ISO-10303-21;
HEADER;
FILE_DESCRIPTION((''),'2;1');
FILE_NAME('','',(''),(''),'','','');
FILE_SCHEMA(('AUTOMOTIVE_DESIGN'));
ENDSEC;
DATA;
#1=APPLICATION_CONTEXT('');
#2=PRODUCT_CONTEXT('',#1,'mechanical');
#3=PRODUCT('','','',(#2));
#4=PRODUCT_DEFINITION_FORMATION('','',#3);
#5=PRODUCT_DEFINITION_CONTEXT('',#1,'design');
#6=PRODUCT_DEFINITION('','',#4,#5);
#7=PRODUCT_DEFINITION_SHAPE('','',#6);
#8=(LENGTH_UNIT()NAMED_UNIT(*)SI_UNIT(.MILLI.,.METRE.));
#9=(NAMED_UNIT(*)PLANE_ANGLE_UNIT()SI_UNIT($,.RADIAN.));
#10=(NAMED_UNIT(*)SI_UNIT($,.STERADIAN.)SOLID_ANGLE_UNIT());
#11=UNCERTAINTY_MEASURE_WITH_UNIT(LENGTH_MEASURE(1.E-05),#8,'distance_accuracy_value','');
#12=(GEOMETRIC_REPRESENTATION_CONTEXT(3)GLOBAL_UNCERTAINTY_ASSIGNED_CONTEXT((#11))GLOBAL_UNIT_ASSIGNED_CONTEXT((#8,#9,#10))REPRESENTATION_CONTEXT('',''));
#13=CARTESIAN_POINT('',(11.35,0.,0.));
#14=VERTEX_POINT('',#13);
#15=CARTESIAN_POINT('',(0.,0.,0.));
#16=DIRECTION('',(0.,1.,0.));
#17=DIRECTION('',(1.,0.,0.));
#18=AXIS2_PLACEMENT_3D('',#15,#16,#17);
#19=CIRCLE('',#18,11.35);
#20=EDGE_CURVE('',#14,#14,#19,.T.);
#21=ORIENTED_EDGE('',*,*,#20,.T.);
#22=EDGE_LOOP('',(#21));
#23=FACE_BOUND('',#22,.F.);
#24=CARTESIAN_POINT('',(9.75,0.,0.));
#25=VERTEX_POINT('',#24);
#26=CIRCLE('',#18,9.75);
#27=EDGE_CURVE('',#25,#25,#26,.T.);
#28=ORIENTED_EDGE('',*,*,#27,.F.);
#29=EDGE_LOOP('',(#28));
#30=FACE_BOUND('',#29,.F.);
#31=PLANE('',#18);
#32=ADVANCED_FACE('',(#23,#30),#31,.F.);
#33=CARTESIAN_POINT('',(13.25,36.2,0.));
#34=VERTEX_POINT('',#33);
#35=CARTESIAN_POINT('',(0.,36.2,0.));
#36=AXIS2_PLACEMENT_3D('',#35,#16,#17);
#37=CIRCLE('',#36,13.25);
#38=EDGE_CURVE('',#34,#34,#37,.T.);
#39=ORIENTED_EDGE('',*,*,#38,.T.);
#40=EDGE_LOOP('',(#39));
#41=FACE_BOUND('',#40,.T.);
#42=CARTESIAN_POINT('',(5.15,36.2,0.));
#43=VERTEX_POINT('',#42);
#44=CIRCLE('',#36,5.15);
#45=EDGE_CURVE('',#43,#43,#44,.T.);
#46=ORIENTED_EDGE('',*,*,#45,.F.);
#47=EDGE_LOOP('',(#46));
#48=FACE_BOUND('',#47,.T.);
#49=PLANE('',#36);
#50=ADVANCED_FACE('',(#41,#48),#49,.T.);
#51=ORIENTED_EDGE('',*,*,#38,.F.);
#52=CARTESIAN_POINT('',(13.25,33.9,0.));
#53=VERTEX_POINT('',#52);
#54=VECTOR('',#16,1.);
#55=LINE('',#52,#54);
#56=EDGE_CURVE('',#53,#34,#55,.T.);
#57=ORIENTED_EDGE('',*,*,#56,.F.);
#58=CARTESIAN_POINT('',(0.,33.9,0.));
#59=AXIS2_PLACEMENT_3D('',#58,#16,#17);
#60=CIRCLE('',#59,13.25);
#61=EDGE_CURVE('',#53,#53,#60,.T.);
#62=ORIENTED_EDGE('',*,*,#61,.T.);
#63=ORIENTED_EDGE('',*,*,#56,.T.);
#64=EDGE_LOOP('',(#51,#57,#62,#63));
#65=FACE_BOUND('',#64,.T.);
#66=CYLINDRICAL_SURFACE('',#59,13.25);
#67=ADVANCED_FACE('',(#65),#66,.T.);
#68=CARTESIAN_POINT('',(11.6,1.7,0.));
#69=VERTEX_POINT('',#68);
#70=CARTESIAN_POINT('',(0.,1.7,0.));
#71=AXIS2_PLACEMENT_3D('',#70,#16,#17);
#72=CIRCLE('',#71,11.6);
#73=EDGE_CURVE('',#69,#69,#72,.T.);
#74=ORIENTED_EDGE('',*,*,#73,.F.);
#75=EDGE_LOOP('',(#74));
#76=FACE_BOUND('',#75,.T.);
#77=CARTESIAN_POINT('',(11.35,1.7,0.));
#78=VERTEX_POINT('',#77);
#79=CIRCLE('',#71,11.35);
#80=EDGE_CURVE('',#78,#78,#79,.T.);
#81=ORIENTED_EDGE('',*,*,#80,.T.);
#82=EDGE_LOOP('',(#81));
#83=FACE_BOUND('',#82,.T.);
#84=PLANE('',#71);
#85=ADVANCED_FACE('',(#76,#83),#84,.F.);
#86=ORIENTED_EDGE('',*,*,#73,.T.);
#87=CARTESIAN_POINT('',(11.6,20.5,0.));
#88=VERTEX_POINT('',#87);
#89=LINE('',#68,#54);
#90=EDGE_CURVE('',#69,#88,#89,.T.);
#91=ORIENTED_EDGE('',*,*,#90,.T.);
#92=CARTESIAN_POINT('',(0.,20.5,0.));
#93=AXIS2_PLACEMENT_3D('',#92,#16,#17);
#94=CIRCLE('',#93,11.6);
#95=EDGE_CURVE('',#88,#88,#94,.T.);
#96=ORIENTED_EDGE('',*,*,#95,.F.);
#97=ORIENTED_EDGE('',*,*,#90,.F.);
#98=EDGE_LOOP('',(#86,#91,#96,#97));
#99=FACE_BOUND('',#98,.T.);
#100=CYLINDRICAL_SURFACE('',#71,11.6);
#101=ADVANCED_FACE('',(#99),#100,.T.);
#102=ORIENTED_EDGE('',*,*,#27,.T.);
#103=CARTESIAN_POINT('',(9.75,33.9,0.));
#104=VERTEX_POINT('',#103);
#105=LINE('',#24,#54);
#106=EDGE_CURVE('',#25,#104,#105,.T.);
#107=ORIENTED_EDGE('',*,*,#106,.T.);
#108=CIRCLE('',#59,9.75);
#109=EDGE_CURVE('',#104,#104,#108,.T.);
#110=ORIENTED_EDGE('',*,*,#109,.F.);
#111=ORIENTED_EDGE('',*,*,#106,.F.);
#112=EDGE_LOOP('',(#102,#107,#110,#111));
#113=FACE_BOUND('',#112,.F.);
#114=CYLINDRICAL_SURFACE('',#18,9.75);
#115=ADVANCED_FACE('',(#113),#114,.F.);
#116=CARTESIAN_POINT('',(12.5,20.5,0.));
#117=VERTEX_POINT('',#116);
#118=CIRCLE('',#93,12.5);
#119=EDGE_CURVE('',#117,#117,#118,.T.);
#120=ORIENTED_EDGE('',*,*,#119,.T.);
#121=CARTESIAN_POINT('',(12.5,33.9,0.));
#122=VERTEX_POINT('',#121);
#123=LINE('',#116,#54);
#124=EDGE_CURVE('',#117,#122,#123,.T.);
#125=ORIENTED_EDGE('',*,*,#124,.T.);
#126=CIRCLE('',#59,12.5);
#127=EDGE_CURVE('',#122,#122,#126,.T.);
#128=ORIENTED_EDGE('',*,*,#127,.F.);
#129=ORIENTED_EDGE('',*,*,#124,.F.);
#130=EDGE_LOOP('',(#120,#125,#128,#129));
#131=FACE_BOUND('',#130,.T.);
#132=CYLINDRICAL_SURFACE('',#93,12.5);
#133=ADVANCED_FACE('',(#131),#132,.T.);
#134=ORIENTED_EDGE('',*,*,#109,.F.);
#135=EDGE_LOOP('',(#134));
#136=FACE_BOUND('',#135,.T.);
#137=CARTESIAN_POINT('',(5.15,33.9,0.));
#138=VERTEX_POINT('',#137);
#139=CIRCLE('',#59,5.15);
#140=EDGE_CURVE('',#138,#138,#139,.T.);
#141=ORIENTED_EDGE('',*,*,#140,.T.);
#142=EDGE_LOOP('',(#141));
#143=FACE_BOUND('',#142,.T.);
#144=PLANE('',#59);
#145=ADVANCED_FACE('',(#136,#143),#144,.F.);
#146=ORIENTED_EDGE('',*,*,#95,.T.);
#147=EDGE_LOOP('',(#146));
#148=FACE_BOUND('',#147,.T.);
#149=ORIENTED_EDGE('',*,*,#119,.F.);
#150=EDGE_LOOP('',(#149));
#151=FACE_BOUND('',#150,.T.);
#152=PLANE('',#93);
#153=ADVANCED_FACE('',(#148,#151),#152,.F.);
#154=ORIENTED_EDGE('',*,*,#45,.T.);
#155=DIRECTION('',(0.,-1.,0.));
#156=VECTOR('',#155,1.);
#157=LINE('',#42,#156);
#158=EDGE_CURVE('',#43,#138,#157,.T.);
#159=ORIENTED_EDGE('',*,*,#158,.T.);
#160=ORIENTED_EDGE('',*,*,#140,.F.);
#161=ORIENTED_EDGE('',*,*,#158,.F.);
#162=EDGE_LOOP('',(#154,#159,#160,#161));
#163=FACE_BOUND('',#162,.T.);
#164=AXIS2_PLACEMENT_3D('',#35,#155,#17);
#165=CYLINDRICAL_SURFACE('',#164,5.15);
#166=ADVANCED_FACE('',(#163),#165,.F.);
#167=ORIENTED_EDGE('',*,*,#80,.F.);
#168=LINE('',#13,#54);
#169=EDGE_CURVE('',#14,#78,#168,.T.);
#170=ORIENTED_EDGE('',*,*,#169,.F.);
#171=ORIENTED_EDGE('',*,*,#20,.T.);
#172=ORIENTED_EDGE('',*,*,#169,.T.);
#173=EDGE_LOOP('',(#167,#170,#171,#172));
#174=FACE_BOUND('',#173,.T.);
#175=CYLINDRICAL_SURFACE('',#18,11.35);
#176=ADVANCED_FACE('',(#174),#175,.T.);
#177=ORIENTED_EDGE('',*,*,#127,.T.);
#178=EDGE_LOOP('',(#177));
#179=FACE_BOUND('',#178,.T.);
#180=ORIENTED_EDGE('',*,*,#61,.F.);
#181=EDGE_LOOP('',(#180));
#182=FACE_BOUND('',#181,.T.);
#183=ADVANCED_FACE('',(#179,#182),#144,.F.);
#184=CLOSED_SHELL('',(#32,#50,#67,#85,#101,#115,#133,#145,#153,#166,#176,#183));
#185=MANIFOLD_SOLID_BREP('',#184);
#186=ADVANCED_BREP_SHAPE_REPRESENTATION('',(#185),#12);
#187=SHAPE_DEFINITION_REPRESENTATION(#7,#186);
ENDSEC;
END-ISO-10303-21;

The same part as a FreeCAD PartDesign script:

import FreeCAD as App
import Part
import Sketcher

doc = App.newDocument("Part")
params = doc.addObject("Spreadsheet::Sheet", "Params")
for row, (alias, value) in enumerate([
    ("sketch1_width", "1.6 mm"),
    ("sketch1_width2", "8.1 mm"),
    ("sketch1_height", "1.7 mm"),
    ("sketch1_height2", "2.3 mm"),
    ("sketch1_width3", "0.25 mm"),
    ("revolution_angle", "360 deg"),
], start=1):
    params.set(f"A{row}", alias)
    params.set(f"B{row}", "=" + value)
    params.setAlias(f"B{row}", alias)

body = doc.addObject("PartDesign::Body", "Body")

# Sketch on XY plane
sketch1 = doc.addObject("Sketcher::SketchObject", "Sketch")
body.addObject(sketch1)
sketch1.AttachmentSupport = (doc.XY_Plane, [""])
sketch1.MapMode = "FlatFace"
sketch1.addGeometry([
    Part.LineSegment(App.Vector(9.75, 0, 0), App.Vector(11.35, 0, 0)),  # 0
    Part.LineSegment(App.Vector(11.35, 0, 0), App.Vector(11.35, 1.7, 0)),  # 1
    Part.LineSegment(App.Vector(11.35, 1.7, 0), App.Vector(11.6, 1.7, 0)),  # 2
    Part.LineSegment(App.Vector(11.6, 1.7, 0), App.Vector(11.6, 20.5, 0)),  # 3
    Part.LineSegment(App.Vector(11.6, 20.5, 0), App.Vector(12.5, 20.5, 0)),  # 4
    Part.LineSegment(App.Vector(12.5, 20.5, 0), App.Vector(12.5, 33.9, 0)),  # 5
    Part.LineSegment(App.Vector(12.5, 33.9, 0), App.Vector(13.25, 33.9, 0)),  # 6
    Part.LineSegment(App.Vector(13.25, 33.9, 0), App.Vector(13.25, 36.2, 0)),  # 7
    Part.LineSegment(App.Vector(13.25, 36.2, 0), App.Vector(5.15, 36.2, 0)),  # 8
    Part.LineSegment(App.Vector(5.15, 36.2, 0), App.Vector(5.15, 33.9, 0)),  # 9
    Part.LineSegment(App.Vector(5.15, 33.9, 0), App.Vector(9.75, 33.9, 0)),  # 10
    Part.LineSegment(App.Vector(9.75, 33.9, 0), App.Vector(9.75, 0, 0)),  # 11
], False)
sketch1.addConstraint([
    Sketcher.Constraint("Coincident", 0, 2, 1, 1),
    Sketcher.Constraint("Coincident", 1, 2, 2, 1),
    Sketcher.Constraint("Coincident", 2, 2, 3, 1),
    Sketcher.Constraint("Coincident", 3, 2, 4, 1),
    Sketcher.Constraint("Coincident", 4, 2, 5, 1),
    Sketcher.Constraint("Coincident", 5, 2, 6, 1),
    Sketcher.Constraint("Coincident", 6, 2, 7, 1),
    Sketcher.Constraint("Coincident", 7, 2, 8, 1),
    Sketcher.Constraint("Coincident", 8, 2, 9, 1),
    Sketcher.Constraint("Coincident", 9, 2, 10, 1),
    Sketcher.Constraint("Coincident", 10, 2, 11, 1),
    Sketcher.Constraint("Coincident", 11, 2, 0, 1),
    Sketcher.Constraint("Horizontal", 0),
    Sketcher.Constraint("Vertical", 1),
    Sketcher.Constraint("Horizontal", 2),
    Sketcher.Constraint("Vertical", 3),
    Sketcher.Constraint("Horizontal", 4),
    Sketcher.Constraint("Vertical", 5),
    Sketcher.Constraint("Horizontal", 6),
    Sketcher.Constraint("Vertical", 7),
    Sketcher.Constraint("Horizontal", 8),
    Sketcher.Constraint("Vertical", 9),
    Sketcher.Constraint("Horizontal", 10),
    Sketcher.Constraint("Vertical", 11),
    Sketcher.Constraint("PointOnObject", 0, 2, -1),
    Sketcher.Constraint("Horizontal", 6, 2, 9, 2),
    Sketcher.Constraint("DistanceX", 0, 1, 0, 2, 1.6),
    Sketcher.Constraint("DistanceX", 8, 2, 8, 1, 8.1),
    Sketcher.Constraint("DistanceY", 1, 1, 1, 2, 1.7),
    Sketcher.Constraint("DistanceY", 7, 1, 7, 2, 2.3),
    Sketcher.Constraint("DistanceX", 2, 1, 2, 2, 0.25),
    Sketcher.Constraint("DistanceX", -1, 1, 2, 2, 11.6),
    Sketcher.Constraint("DistanceX", -1, 1, 4, 2, 12.5),
    Sketcher.Constraint("DistanceY", -1, 1, 7, 2, 36.2),
    Sketcher.Constraint("DistanceY", 4, 2, 7, 2, 15.7),
    Sketcher.Constraint("DistanceX", -1, 1, 6, 2, 13.25),
])
sketch1.setExpression("Constraints[26]", "Params.sketch1_width")
sketch1.setExpression("Constraints[27]", "Params.sketch1_width2")
sketch1.setExpression("Constraints[28]", "Params.sketch1_height")
sketch1.setExpression("Constraints[29]", "Params.sketch1_height2")
sketch1.setExpression("Constraints[30]", "Params.sketch1_width3")
revolution = doc.addObject("PartDesign::Revolution", "Revolution")
body.addObject(revolution)
revolution.Profile = sketch1
revolution.ReferenceAxis = (sketch1, ["V_Axis"])
revolution.setExpression("Angle", "Params.revolution_angle")

doc.recompute()
